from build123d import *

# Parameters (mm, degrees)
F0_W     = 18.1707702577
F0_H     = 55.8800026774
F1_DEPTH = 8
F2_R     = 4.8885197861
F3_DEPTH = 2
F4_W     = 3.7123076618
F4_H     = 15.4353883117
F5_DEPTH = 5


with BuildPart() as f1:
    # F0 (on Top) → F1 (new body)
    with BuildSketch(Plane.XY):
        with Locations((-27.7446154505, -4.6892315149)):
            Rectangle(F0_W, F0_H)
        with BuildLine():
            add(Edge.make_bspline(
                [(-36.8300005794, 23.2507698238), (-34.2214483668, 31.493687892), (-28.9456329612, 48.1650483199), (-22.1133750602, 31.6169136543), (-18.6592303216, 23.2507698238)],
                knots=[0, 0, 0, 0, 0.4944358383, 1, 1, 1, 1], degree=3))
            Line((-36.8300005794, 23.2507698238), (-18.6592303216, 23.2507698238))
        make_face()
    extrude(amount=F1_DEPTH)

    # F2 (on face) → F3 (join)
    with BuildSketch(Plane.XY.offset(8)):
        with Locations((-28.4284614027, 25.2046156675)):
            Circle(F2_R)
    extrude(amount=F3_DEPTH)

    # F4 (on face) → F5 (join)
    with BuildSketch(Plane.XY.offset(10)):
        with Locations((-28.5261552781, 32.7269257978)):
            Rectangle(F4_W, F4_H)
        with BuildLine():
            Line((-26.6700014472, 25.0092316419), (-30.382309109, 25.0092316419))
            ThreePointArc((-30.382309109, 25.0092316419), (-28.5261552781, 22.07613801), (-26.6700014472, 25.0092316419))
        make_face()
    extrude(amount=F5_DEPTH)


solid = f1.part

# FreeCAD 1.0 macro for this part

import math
import FreeCAD as App
import Part
import Sketcher
Q = App.Units.Quantity

doc = App.newDocument("Part")
body = doc.addObject("PartDesign::Body", "Body")

sketch1 = body.newObject("Sketcher::SketchObject", "Sketch")
sketch1.AttachmentSupport = (doc.getObject("XY_Plane"), [""])
sketch1.MapMode = "FlatFace"
sketch1.addGeometry(Part.LineSegment(App.Vector(-36.830001, 23.25077, 0), App.Vector(-36.830001, -32.629233, 0)), False)
sketch1.addGeometry(Part.LineSegment(App.Vector(-36.830001, -32.629233, 0), App.Vector(-18.65923, -32.629233, 0)), False)
sketch1.addGeometry(Part.LineSegment(App.Vector(-18.65923, -32.629233, 0), App.Vector(-18.65923, 23.25077, 0)), False)
sketch1.addGeometry(Part.BSplineCurve([App.Vector(-36.830001, 23.25077, 0), App.Vector(-34.221448, 31.493688, 0), App.Vector(-28.945633, 48.165048, 0), App.Vector(-22.113375, 31.616914, 0), App.Vector(-18.65923, 23.25077, 0)], [4, 1, 4], [0, 0.494435838, 1], False, 3, [1, 1, 1, 1, 1], False), False)
sketch1.addConstraint(Sketcher.Constraint("Block", 3))
sketch1.addConstraint(Sketcher.Constraint("Coincident", 0, 2, 1, 1))
sketch1.addConstraint(Sketcher.Constraint("Coincident", 1, 2, 2, 1))
sketch1.addConstraint(Sketcher.Constraint("Coincident", 2, 2, 3, 2))
sketch1.addConstraint(Sketcher.Constraint("Coincident", 3, 1, 0, 1))
sketch1.addConstraint(Sketcher.Constraint("Vertical", 0))
sketch1.addConstraint(Sketcher.Constraint("Horizontal", 1))
sketch1.addConstraint(Sketcher.Constraint("Vertical", 2))
sketch1.addConstraint(Sketcher.Constraint("DistanceY", 0, 2, 0, 1, Q("55.880003 mm")))
pad1 = body.newObject("PartDesign::Pad", "Pad")
pad1.Profile = sketch1
pad1.Length = 8

sketch2 = body.newObject("Sketcher::SketchObject", "Sketch001")
sketch2.AttachmentSupport = (doc.getObject("XY_Plane"), [""])
sketch2.MapMode = "FlatFace"
sketch2.AttachmentOffset = App.Placement(App.Vector(0, 0, 8), App.Rotation())
sketch2.addGeometry(Part.Circle(App.Vector(-28.4, 25.2, 0), App.Vector(0, 0, 1), 4.9), False)
sketch2.addConstraint(Sketcher.Constraint("Diameter", 0, Q("9.77704 mm")))
sketch2.addConstraint(Sketcher.Constraint("DistanceX", 0, 3, -1, 1, Q("28.428461 mm")))
sketch2.addConstraint(Sketcher.Constraint("DistanceY", -1, 1, 0, 3, Q("25.204616 mm")))
pad2 = body.newObject("PartDesign::Pad", "Pad001")
pad2.Profile = sketch2
pad2.Length = 2

sketch3 = body.newObject("Sketcher::SketchObject", "Sketch002")
sketch3.AttachmentSupport = (doc.getObject("XY_Plane"), [""])
sketch3.MapMode = "FlatFace"
sketch3.AttachmentOffset = App.Placement(App.Vector(0, 0, 10), App.Rotation())
sketch3.addGeometry(Part.LineSegment(App.Vector(-30.4, 40.4, 0), App.Vector(-30.4, 25, 0)), False)
sketch3.addGeometry(Part.ArcOfCircle(Part.Circle(App.Vector(-28.5, 24.1, 0), App.Vector(0, 0, 1), 2.1), math.radians(155), math.radians(385)), False)
sketch3.addGeometry(Part.LineSegment(App.Vector(-26.7, 25, 0), App.Vector(-26.7, 40.4, 0)), False)
sketch3.addGeometry(Part.LineSegment(App.Vector(-26.7, 40.4, 0), App.Vector(-30.4, 40.4, 0)), False)
sketch3.addConstraint(Sketcher.Constraint("Coincident", 0, 2, 1, 1))
sketch3.addConstraint(Sketcher.Constraint("Coincident", 1, 2, 2, 1))
sketch3.addConstraint(Sketcher.Constraint("Coincident", 2, 2, 3, 1))
sketch3.addConstraint(Sketcher.Constraint("Coincident", 3, 2, 0, 1))
sketch3.addConstraint(Sketcher.Constraint("Vertical", 0))
sketch3.addConstraint(Sketcher.Constraint("Vertical", 2))
sketch3.addConstraint(Sketcher.Constraint("Horizontal", 3))
sketch3.addConstraint(Sketcher.Constraint("Horizontal", 0, 2, 1, 2))
sketch3.addConstraint(Sketcher.Constraint("DistanceY", -1, 1, 1, 3, Q("24.130001 mm")))
sketch3.addConstraint(Sketcher.Constraint("DistanceX", 1, 2, -1, 1, Q("26.670001 mm")))
sketch3.addConstraint(Sketcher.Constraint("Radius", 1, Q("2.053863 mm")))
sketch3.addConstraint(Sketcher.Constraint("DistanceY", 0, 2, 0, 1, Q("15.435388 mm")))
sketch3.addConstraint(Sketcher.Constraint("DistanceX", 3, 2, 3, 1, Q("3.712308 mm")))
pad3 = body.newObject("PartDesign::Pad", "Pad002")
pad3.Profile = sketch3
pad3.Length = 5

doc.recompute()
